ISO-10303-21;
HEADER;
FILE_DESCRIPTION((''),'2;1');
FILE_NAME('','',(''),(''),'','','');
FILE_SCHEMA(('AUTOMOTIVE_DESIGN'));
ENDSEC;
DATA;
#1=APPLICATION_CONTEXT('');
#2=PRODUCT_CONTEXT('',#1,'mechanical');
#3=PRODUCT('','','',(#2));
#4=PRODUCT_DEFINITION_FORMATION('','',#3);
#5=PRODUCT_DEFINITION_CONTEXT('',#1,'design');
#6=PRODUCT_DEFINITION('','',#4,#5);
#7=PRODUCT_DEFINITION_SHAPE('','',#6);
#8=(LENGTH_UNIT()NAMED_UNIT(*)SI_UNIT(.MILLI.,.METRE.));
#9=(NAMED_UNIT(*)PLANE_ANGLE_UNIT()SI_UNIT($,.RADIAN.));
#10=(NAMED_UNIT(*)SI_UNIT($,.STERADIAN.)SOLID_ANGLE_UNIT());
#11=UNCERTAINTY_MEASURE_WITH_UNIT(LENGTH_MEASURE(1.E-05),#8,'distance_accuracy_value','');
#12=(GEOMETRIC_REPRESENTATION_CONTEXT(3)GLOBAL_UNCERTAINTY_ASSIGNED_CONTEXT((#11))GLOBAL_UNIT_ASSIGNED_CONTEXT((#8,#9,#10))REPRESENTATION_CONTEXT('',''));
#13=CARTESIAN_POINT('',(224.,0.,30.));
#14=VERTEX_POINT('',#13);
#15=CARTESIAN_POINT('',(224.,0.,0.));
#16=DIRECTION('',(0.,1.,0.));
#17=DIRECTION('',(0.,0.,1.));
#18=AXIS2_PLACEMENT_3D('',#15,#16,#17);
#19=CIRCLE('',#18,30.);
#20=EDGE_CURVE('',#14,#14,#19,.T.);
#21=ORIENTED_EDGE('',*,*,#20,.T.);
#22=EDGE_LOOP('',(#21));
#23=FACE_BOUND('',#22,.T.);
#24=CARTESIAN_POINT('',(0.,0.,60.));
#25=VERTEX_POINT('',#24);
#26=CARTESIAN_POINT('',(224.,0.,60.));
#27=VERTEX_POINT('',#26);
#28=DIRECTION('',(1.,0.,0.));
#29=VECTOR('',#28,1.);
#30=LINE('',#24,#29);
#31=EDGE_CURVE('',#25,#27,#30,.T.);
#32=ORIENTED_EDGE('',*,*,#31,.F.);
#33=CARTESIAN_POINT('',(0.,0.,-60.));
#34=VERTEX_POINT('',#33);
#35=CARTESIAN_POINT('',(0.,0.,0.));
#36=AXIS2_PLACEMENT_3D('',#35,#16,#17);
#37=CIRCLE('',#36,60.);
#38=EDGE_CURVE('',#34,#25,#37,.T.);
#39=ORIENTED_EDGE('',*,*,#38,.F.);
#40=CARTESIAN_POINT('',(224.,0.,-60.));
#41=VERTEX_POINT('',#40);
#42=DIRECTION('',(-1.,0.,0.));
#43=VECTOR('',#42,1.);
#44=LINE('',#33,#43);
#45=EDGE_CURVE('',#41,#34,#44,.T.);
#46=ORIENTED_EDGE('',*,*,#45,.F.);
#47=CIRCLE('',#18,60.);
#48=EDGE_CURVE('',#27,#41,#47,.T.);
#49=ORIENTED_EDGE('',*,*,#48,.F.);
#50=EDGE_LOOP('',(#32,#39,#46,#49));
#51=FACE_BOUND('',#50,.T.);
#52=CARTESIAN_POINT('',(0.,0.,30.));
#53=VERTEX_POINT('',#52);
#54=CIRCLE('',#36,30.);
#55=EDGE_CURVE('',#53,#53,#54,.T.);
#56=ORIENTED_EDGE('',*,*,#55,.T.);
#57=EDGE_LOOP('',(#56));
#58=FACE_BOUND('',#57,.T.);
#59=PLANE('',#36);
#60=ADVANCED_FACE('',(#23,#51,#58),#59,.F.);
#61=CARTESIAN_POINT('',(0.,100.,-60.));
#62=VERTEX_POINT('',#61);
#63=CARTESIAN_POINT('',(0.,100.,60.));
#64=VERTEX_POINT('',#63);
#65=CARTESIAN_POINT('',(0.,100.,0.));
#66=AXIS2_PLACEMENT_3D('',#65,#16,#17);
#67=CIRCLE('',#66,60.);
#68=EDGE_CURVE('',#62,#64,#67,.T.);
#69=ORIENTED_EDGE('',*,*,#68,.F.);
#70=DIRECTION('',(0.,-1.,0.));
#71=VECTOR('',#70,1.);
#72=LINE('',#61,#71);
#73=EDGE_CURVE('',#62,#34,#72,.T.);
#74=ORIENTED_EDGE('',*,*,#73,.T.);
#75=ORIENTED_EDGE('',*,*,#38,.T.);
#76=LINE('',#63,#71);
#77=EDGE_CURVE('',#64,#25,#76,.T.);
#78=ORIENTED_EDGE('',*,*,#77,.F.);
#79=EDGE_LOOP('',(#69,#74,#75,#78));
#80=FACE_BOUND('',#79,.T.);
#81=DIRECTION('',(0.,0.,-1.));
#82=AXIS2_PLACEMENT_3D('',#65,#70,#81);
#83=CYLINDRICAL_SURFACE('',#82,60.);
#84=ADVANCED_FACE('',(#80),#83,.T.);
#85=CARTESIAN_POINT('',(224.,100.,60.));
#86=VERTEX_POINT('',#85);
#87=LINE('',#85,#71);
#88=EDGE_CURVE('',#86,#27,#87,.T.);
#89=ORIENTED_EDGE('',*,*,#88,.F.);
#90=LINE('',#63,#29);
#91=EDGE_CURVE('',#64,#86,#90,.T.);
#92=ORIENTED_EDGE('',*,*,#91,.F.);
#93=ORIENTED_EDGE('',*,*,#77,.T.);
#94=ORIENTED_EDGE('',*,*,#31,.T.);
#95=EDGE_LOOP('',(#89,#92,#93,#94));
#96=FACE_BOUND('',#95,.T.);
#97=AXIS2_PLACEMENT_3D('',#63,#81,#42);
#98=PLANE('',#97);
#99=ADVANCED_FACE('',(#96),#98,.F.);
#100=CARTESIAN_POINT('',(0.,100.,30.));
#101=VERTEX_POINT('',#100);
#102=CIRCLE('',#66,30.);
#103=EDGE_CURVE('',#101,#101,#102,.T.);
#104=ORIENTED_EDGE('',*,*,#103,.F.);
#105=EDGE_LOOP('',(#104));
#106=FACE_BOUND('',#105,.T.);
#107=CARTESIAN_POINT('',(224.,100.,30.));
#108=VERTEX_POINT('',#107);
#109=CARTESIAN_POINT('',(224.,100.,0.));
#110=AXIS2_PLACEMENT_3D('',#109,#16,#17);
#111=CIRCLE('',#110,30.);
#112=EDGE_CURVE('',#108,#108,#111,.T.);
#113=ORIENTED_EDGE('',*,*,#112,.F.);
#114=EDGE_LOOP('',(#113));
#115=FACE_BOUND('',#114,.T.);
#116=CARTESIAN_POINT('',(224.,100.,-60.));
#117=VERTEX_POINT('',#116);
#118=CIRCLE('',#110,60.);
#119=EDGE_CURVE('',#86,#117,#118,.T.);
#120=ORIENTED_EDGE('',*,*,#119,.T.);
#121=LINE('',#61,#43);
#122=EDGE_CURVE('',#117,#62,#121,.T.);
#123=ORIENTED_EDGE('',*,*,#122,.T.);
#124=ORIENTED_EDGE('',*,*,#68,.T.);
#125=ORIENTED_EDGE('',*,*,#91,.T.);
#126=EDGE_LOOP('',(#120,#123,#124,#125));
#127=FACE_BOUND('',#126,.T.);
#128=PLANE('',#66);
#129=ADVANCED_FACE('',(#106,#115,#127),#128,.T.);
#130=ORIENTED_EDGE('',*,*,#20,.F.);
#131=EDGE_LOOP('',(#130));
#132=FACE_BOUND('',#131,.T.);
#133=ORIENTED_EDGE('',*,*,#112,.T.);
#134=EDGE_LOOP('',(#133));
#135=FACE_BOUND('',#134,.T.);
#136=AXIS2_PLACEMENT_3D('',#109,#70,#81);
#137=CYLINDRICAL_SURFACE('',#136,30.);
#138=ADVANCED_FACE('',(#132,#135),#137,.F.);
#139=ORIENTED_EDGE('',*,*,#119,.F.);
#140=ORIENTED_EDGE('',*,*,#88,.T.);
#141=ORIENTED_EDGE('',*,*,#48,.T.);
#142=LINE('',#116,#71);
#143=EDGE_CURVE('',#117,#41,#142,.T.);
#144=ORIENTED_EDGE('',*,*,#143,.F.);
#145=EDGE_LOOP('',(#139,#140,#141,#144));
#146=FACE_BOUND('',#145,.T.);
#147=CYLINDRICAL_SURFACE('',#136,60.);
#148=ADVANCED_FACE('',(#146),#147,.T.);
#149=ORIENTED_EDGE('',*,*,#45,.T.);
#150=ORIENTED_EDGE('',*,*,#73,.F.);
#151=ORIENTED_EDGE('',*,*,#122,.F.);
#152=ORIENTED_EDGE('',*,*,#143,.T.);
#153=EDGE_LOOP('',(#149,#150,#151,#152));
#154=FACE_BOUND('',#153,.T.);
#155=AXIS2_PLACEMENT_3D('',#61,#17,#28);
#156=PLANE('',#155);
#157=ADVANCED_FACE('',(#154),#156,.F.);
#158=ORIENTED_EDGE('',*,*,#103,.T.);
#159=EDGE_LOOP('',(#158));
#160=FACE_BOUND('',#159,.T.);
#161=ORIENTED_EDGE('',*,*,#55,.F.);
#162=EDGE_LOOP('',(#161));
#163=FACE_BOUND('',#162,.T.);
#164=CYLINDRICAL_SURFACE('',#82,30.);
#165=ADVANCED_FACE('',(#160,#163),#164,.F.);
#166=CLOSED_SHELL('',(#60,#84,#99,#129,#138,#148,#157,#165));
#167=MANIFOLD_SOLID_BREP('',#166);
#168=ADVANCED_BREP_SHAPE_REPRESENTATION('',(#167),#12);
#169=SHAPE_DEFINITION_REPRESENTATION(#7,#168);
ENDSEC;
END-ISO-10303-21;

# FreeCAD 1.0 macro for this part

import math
import FreeCAD as App
import Part
import Sketcher
Q = App.Units.Quantity

doc = App.newDocument("Part")
params = doc.addObject("Spreadsheet::Sheet", "Params")
for row, (alias, value) in enumerate([
    ("sketch1_diameter", "60 mm"),
    ("sketch1_radius", "60 mm"),
    ("sketch1_width", "224 mm"),
    ("pad1_length", "100 mm"),
], start=1):
    params.set(f"A{row}", alias)
    params.set(f"B{row}", "=" + value)
    params.setAlias(f"B{row}", alias)

body = doc.addObject("PartDesign::Body", "Body")

# Sketch on XZ plane
sketch1 = doc.addObject("Sketcher::SketchObject", "Sketch")
body.addObject(sketch1)
sketch1.AttachmentSupport = (doc.XZ_Plane, [""])
sketch1.MapMode = "FlatFace"
sketch1.addGeometry([
    Part.LineSegment(App.Vector(224, -60, 0), App.Vector(0, -60, 0)),  # 0
    Part.ArcOfCircle(Part.Circle(App.Vector(0, 0, 0), App.Vector(0, 0, 1), 60), math.radians(90), math.radians(270)),  # 1
    Part.LineSegment(App.Vector(0, 60, 0), App.Vector(224, 60, 0)),  # 2
    Part.ArcOfCircle(Part.Circle(App.Vector(224, 0, 0), App.Vector(0, 0, 1), 60), math.radians(-90), math.radians(90)),  # 3
    Part.Circle(App.Vector(224, 0, 0), App.Vector(0, 0, 1), 30),  # 4
    Part.Circle(App.Vector(0, 0, 0), App.Vector(0, 0, 1), 30),  # 5
], False)
sketch1.addConstraint([
    Sketcher.Constraint("Tangent", 0, 2, 1, 2),
    Sketcher.Constraint("Tangent", 1, 1, 2, 1),
    Sketcher.Constraint("Tangent", 2, 2, 3, 2),
    Sketcher.Constraint("Tangent", 3, 1, 0, 1),
    Sketcher.Constraint("Horizontal", 0),
    Sketcher.Constraint("Horizontal", 2),
    Sketcher.Constraint("Coincident", 1, 3, -1, 1),
    Sketcher.Constraint("Coincident", 5, 3, -1, 1),
    Sketcher.Constraint("Coincident", 4, 3, 3, 3),
    Sketcher.Constraint("Equal", 4, 5),
    Sketcher.Constraint("Diameter", 4, Q("60 mm")),
    Sketcher.Constraint("Radius", 1, Q("60 mm")),
    Sketcher.Constraint("DistanceX", 0, 2, 0, 1, Q("224 mm")),
])
sketch1.setExpression("Constraints[10]", "Params.sketch1_diameter")
sketch1.setExpression("Constraints[11]", "Params.sketch1_radius")
sketch1.setExpression("Constraints[12]", "Params.sketch1_width")
pad1 = doc.addObject("PartDesign::Pad", "Pad")
body.addObject(pad1)
pad1.Profile = sketch1
pad1.setExpression("Length", "Params.pad1_length")
pad1.Reversed = True

doc.recompute()
